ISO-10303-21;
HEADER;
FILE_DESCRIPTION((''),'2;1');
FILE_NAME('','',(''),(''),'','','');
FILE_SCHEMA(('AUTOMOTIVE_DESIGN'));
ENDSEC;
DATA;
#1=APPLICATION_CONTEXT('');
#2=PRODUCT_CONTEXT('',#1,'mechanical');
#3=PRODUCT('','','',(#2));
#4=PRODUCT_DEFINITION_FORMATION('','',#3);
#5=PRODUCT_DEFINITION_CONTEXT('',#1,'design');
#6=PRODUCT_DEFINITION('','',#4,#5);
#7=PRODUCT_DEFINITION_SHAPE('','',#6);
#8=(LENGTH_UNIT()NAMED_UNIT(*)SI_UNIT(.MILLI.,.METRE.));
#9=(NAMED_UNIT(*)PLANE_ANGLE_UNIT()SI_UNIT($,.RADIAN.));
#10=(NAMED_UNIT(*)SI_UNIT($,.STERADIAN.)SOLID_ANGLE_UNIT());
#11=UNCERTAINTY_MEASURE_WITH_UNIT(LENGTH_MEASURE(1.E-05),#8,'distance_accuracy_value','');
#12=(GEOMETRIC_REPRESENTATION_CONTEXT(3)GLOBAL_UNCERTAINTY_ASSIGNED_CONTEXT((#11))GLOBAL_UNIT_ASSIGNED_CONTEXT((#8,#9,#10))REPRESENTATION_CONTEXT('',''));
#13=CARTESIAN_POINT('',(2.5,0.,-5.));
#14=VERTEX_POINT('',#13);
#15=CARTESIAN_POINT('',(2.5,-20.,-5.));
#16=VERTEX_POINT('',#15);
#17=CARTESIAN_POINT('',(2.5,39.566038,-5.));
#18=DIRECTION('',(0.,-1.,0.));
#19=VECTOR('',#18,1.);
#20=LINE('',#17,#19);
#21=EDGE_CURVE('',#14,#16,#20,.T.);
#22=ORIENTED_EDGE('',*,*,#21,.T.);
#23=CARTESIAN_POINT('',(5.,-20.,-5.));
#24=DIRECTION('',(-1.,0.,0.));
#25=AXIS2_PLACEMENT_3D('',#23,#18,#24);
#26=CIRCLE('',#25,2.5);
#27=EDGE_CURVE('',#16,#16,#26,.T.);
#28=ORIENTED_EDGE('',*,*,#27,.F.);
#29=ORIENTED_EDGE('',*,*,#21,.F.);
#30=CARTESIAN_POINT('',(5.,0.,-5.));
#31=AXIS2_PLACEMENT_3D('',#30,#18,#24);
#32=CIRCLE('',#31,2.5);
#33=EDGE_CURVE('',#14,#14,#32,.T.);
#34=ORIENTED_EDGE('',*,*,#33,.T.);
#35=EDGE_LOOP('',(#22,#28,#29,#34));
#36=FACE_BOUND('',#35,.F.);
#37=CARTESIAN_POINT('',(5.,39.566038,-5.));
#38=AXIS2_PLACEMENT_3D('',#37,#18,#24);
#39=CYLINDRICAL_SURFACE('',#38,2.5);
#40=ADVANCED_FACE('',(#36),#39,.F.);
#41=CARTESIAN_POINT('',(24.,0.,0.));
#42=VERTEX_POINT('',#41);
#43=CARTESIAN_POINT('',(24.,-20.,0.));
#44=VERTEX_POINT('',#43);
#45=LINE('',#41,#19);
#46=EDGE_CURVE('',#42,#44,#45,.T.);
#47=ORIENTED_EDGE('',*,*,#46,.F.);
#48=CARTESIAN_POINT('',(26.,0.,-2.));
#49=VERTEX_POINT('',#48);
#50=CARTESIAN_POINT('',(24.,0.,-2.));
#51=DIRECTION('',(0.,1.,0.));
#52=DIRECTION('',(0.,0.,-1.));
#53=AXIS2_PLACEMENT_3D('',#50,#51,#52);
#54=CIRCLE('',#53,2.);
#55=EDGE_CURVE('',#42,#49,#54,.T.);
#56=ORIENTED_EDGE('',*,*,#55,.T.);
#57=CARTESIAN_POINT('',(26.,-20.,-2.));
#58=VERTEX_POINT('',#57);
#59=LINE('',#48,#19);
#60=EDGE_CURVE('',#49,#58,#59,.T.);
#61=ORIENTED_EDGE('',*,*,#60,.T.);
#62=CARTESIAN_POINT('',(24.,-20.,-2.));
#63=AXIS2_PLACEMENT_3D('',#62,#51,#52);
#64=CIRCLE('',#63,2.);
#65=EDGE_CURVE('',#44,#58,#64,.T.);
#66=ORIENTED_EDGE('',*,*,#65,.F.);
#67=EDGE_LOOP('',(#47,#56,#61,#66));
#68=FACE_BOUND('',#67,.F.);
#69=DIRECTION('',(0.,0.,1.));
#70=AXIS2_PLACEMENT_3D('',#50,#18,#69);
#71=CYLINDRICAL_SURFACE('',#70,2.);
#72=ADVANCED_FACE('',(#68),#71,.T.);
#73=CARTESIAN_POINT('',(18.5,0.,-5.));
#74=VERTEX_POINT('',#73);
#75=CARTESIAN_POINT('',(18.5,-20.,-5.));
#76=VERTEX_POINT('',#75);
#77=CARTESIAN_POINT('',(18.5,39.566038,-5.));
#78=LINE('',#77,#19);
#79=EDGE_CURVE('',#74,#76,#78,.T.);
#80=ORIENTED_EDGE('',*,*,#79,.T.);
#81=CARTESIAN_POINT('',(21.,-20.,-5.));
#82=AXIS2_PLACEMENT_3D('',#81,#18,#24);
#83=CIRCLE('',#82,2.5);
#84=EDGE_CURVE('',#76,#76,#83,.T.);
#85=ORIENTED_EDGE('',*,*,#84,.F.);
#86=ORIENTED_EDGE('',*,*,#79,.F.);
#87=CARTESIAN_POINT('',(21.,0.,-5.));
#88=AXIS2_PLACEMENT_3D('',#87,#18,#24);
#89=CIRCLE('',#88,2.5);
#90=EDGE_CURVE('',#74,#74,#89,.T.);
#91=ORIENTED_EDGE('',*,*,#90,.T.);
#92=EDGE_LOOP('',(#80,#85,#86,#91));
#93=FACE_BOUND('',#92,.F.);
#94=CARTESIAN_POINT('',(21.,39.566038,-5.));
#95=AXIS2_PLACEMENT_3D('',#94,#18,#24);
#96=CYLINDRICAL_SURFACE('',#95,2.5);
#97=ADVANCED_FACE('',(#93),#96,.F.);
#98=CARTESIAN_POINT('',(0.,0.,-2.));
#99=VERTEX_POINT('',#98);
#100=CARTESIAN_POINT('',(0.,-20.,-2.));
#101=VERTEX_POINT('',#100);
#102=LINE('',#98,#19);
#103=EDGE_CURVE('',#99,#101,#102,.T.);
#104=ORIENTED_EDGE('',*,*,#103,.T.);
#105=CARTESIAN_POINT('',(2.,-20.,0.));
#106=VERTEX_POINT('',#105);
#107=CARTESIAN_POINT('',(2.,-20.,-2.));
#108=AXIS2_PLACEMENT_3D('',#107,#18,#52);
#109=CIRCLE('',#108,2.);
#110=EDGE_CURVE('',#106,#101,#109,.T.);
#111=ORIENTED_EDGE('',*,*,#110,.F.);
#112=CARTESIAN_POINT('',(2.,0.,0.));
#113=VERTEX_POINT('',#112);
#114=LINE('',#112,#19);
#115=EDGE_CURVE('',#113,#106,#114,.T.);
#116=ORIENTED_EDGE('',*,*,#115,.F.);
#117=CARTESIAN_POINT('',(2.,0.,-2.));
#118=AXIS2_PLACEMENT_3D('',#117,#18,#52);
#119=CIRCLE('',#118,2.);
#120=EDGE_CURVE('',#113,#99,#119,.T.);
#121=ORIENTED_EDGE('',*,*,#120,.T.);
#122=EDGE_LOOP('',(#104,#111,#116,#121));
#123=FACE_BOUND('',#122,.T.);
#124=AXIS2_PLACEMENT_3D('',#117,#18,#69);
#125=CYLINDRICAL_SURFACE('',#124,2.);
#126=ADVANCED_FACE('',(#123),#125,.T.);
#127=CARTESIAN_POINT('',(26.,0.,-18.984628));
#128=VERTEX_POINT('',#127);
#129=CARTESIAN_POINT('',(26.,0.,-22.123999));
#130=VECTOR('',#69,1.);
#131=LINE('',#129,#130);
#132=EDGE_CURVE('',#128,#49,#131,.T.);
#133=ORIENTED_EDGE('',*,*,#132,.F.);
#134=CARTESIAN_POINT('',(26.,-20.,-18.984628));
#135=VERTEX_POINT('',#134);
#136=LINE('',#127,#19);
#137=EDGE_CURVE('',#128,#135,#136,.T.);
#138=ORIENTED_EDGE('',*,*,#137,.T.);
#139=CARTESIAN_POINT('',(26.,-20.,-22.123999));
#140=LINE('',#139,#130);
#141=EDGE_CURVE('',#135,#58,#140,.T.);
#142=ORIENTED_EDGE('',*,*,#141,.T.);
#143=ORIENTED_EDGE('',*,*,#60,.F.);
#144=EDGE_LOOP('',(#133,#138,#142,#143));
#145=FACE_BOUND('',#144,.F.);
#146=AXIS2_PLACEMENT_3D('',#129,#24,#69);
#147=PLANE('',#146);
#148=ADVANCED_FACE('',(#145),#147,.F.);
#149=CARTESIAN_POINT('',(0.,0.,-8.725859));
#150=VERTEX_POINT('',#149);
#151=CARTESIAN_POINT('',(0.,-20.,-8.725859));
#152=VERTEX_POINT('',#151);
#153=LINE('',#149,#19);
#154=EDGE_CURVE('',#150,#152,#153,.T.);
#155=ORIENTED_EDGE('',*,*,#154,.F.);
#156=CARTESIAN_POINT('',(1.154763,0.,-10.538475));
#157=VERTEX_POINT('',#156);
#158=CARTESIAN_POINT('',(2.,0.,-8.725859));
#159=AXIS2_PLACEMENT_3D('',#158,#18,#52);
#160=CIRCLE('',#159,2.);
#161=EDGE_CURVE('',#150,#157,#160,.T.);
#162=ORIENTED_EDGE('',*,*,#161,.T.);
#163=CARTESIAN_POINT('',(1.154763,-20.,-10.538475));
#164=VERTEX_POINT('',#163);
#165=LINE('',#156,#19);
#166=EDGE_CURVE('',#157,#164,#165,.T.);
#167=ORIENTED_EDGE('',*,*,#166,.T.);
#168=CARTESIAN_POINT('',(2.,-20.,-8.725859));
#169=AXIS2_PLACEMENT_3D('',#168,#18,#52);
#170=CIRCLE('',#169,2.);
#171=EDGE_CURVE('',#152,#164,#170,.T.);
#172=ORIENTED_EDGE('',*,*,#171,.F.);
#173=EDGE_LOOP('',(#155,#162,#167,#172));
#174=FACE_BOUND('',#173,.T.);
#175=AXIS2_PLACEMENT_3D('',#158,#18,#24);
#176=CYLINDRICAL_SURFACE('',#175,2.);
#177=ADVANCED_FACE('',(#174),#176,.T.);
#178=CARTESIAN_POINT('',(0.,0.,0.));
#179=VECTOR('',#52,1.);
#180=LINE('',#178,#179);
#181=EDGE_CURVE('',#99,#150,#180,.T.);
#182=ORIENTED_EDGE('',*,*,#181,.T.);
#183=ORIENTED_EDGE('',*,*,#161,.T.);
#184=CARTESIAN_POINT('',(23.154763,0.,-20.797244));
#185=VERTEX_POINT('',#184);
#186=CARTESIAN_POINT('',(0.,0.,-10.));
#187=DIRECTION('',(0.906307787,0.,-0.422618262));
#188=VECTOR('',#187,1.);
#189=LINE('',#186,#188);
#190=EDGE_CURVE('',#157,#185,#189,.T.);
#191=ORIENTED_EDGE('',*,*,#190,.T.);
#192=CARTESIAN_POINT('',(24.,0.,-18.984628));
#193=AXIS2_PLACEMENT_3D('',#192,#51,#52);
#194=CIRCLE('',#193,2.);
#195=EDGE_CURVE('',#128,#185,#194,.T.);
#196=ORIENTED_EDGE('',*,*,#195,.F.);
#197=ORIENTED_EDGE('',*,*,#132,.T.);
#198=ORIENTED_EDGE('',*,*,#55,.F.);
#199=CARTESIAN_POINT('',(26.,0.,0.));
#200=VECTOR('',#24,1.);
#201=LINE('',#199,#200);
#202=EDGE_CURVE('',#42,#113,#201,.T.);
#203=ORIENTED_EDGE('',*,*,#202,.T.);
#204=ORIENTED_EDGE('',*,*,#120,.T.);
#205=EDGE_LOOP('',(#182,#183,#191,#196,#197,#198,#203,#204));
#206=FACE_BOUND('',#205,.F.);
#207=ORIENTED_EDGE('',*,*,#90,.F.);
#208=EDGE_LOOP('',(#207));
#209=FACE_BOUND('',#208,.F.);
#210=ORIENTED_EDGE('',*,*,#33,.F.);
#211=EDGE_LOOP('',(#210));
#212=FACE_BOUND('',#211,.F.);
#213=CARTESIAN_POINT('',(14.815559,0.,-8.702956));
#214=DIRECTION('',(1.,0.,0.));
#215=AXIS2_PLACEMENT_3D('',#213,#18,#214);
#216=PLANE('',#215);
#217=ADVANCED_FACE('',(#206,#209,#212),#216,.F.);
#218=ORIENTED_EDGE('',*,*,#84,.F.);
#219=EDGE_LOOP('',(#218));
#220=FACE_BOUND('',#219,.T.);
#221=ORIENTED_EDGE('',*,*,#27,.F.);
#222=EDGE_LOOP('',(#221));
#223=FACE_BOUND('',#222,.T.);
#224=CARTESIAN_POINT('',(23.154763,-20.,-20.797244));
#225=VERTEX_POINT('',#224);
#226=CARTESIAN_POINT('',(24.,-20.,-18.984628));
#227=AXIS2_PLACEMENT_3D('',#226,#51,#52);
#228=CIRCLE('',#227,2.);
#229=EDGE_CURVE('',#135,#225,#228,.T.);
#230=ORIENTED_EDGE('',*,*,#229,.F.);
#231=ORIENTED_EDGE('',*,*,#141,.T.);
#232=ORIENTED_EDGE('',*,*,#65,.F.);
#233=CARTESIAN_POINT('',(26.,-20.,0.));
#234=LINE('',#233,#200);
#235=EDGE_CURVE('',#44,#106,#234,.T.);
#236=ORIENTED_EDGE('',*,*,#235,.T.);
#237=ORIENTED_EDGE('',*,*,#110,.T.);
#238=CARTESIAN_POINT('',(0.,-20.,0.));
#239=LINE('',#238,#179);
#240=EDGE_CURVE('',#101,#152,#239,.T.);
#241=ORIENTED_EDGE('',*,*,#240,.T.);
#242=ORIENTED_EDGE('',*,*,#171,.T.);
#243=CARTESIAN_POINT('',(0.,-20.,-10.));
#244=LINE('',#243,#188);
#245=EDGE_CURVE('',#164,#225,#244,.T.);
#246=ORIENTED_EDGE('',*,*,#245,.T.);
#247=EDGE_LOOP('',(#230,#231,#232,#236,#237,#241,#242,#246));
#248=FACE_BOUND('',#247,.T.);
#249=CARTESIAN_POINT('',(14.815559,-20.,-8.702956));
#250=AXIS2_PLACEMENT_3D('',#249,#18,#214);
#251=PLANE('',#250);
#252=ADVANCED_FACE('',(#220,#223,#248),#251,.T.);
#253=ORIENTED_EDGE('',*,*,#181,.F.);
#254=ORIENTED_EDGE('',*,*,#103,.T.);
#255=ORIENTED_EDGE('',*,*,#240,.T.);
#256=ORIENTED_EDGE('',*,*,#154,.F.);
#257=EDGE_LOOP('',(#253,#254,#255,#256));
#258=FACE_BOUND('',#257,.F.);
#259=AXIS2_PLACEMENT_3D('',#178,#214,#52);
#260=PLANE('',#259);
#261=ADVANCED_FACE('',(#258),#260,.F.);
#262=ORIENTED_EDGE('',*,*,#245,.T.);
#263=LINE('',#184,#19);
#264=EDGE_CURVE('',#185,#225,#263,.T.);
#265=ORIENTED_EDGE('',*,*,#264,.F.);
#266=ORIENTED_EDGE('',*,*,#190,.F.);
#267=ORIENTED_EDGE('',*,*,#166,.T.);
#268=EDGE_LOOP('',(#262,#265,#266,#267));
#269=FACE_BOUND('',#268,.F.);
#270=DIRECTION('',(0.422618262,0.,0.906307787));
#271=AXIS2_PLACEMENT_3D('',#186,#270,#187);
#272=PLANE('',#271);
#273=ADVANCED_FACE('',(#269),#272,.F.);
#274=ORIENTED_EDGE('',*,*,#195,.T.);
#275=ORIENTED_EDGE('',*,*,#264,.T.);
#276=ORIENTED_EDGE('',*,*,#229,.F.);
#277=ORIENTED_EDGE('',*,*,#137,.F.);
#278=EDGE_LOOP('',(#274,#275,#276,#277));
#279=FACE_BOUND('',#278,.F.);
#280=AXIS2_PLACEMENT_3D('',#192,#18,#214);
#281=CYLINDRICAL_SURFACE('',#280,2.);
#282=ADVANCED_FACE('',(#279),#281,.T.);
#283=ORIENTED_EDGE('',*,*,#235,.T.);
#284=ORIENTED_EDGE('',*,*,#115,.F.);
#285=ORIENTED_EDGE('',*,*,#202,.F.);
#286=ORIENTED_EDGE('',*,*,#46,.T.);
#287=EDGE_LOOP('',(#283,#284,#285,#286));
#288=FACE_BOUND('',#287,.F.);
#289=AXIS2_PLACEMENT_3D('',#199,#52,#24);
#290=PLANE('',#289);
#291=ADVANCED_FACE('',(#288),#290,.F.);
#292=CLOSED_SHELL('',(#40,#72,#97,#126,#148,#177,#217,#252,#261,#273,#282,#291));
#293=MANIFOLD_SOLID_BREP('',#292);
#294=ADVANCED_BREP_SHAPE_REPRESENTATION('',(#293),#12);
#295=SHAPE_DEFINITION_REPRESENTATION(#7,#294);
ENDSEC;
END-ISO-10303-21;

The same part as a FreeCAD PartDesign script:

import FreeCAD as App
import Part
import Sketcher
Q = App.Units.Quantity


def edges_at(feature, points):
    """Names of the edges that pass closest to the given points."""
    edges = feature.Shape.Edges
    near = lambda p: min(range(len(edges)), key=lambda i: edges[i].distToShape(Part.Vertex(*p))[0])
    return sorted({f"Edge{near(p) + 1}" for p in points})


def add_polygon(sketch, points):
    """Adds a closed chain of lines whose ends are joined by coincident constraints."""
    first, n = sketch.GeometryCount, len(points)
    for a, b in zip(points, points[1:] + points[:1]):
        sketch.addGeometry(Part.LineSegment(App.Vector(*a, 0), App.Vector(*b, 0)), False)
    for i in range(n):
        sketch.addConstraint(Sketcher.Constraint("Coincident", first + i, 2, first + (i + 1) % n, 1))

doc = App.newDocument("Part")
body = doc.addObject("PartDesign::Body", "Body")

sketch1 = body.newObject("Sketcher::SketchObject", "Sketch")
sketch1.AttachmentSupport = (doc.getObject("XZ_Plane"), [""])
sketch1.MapMode = "FlatFace"
add_polygon(sketch1, [(26, 0), (0, 0), (0, -10), (26, -22)])
sketch1.addConstraint(Sketcher.Constraint("Horizontal", 0))
sketch1.addConstraint(Sketcher.Constraint("Vertical", 1))
sketch1.addConstraint(Sketcher.Constraint("Vertical", 3))
sketch1.addConstraint(Sketcher.Constraint("Coincident", 0, 2, -1, 1))
sketch1.addConstraint(Sketcher.Constraint("DistanceX", 0, 2, 0, 1, 26.0))
sketch1.addConstraint(Sketcher.Constraint("DistanceY", 1, 2, 1, 1, 10.0))
sketch1.addConstraint(Sketcher.Constraint("Angle", 2, Q("-25 deg")))
pad1 = body.newObject("PartDesign::Pad", "Pad")
pad1.Profile = sketch1
pad1.Length = 20

sketch2 = body.newObject("Sketcher::SketchObject", "Sketch001")
sketch2.AttachmentSupport = (doc.getObject("XZ_Plane"), [""])
sketch2.MapMode = "FlatFace"
sketch2.addGeometry(Part.Circle(App.Vector(5, -5, 0), App.Vector(0, 0, 1), 2.5), False)
sketch2.addGeometry(Part.Circle(App.Vector(21, -5, 0), App.Vector(0, 0, 1), 2.5), False)
sketch2.addConstraint(Sketcher.Constraint("Equal", 0, 1))
sketch2.addConstraint(Sketcher.Constraint("Horizontal", 0, 3, 1, 3))
sketch2.addConstraint(Sketcher.Constraint("Diameter", 0, 5.0))
sketch2.addConstraint(Sketcher.Constraint("DistanceX", -1, 1, 0, 3, 5.0))
sketch2.addConstraint(Sketcher.Constraint("DistanceY", 0, 3, -1, 1, 5.0))
sketch2.addConstraint(Sketcher.Constraint("DistanceX", -1, 1, 1, 3, 21.0))
doc.recompute()
hole = body.newObject("PartDesign::Hole", "Hole")
hole.Profile = sketch2
hole.ThreadType = "None"
hole.Diameter = 5
hole.DepthType = "ThroughAll"
hole.Reversed = True
doc.recompute()

fillet = body.newObject("PartDesign::Fillet", "Fillet")
fillet.Base = (hole, edges_at(hole, [
    (26, -10, -22.124),
    (0, -10, -10),
    (0, -10, 0),
    (26, -10, 0),
]))
fillet.Radius = 2

doc.recompute()
